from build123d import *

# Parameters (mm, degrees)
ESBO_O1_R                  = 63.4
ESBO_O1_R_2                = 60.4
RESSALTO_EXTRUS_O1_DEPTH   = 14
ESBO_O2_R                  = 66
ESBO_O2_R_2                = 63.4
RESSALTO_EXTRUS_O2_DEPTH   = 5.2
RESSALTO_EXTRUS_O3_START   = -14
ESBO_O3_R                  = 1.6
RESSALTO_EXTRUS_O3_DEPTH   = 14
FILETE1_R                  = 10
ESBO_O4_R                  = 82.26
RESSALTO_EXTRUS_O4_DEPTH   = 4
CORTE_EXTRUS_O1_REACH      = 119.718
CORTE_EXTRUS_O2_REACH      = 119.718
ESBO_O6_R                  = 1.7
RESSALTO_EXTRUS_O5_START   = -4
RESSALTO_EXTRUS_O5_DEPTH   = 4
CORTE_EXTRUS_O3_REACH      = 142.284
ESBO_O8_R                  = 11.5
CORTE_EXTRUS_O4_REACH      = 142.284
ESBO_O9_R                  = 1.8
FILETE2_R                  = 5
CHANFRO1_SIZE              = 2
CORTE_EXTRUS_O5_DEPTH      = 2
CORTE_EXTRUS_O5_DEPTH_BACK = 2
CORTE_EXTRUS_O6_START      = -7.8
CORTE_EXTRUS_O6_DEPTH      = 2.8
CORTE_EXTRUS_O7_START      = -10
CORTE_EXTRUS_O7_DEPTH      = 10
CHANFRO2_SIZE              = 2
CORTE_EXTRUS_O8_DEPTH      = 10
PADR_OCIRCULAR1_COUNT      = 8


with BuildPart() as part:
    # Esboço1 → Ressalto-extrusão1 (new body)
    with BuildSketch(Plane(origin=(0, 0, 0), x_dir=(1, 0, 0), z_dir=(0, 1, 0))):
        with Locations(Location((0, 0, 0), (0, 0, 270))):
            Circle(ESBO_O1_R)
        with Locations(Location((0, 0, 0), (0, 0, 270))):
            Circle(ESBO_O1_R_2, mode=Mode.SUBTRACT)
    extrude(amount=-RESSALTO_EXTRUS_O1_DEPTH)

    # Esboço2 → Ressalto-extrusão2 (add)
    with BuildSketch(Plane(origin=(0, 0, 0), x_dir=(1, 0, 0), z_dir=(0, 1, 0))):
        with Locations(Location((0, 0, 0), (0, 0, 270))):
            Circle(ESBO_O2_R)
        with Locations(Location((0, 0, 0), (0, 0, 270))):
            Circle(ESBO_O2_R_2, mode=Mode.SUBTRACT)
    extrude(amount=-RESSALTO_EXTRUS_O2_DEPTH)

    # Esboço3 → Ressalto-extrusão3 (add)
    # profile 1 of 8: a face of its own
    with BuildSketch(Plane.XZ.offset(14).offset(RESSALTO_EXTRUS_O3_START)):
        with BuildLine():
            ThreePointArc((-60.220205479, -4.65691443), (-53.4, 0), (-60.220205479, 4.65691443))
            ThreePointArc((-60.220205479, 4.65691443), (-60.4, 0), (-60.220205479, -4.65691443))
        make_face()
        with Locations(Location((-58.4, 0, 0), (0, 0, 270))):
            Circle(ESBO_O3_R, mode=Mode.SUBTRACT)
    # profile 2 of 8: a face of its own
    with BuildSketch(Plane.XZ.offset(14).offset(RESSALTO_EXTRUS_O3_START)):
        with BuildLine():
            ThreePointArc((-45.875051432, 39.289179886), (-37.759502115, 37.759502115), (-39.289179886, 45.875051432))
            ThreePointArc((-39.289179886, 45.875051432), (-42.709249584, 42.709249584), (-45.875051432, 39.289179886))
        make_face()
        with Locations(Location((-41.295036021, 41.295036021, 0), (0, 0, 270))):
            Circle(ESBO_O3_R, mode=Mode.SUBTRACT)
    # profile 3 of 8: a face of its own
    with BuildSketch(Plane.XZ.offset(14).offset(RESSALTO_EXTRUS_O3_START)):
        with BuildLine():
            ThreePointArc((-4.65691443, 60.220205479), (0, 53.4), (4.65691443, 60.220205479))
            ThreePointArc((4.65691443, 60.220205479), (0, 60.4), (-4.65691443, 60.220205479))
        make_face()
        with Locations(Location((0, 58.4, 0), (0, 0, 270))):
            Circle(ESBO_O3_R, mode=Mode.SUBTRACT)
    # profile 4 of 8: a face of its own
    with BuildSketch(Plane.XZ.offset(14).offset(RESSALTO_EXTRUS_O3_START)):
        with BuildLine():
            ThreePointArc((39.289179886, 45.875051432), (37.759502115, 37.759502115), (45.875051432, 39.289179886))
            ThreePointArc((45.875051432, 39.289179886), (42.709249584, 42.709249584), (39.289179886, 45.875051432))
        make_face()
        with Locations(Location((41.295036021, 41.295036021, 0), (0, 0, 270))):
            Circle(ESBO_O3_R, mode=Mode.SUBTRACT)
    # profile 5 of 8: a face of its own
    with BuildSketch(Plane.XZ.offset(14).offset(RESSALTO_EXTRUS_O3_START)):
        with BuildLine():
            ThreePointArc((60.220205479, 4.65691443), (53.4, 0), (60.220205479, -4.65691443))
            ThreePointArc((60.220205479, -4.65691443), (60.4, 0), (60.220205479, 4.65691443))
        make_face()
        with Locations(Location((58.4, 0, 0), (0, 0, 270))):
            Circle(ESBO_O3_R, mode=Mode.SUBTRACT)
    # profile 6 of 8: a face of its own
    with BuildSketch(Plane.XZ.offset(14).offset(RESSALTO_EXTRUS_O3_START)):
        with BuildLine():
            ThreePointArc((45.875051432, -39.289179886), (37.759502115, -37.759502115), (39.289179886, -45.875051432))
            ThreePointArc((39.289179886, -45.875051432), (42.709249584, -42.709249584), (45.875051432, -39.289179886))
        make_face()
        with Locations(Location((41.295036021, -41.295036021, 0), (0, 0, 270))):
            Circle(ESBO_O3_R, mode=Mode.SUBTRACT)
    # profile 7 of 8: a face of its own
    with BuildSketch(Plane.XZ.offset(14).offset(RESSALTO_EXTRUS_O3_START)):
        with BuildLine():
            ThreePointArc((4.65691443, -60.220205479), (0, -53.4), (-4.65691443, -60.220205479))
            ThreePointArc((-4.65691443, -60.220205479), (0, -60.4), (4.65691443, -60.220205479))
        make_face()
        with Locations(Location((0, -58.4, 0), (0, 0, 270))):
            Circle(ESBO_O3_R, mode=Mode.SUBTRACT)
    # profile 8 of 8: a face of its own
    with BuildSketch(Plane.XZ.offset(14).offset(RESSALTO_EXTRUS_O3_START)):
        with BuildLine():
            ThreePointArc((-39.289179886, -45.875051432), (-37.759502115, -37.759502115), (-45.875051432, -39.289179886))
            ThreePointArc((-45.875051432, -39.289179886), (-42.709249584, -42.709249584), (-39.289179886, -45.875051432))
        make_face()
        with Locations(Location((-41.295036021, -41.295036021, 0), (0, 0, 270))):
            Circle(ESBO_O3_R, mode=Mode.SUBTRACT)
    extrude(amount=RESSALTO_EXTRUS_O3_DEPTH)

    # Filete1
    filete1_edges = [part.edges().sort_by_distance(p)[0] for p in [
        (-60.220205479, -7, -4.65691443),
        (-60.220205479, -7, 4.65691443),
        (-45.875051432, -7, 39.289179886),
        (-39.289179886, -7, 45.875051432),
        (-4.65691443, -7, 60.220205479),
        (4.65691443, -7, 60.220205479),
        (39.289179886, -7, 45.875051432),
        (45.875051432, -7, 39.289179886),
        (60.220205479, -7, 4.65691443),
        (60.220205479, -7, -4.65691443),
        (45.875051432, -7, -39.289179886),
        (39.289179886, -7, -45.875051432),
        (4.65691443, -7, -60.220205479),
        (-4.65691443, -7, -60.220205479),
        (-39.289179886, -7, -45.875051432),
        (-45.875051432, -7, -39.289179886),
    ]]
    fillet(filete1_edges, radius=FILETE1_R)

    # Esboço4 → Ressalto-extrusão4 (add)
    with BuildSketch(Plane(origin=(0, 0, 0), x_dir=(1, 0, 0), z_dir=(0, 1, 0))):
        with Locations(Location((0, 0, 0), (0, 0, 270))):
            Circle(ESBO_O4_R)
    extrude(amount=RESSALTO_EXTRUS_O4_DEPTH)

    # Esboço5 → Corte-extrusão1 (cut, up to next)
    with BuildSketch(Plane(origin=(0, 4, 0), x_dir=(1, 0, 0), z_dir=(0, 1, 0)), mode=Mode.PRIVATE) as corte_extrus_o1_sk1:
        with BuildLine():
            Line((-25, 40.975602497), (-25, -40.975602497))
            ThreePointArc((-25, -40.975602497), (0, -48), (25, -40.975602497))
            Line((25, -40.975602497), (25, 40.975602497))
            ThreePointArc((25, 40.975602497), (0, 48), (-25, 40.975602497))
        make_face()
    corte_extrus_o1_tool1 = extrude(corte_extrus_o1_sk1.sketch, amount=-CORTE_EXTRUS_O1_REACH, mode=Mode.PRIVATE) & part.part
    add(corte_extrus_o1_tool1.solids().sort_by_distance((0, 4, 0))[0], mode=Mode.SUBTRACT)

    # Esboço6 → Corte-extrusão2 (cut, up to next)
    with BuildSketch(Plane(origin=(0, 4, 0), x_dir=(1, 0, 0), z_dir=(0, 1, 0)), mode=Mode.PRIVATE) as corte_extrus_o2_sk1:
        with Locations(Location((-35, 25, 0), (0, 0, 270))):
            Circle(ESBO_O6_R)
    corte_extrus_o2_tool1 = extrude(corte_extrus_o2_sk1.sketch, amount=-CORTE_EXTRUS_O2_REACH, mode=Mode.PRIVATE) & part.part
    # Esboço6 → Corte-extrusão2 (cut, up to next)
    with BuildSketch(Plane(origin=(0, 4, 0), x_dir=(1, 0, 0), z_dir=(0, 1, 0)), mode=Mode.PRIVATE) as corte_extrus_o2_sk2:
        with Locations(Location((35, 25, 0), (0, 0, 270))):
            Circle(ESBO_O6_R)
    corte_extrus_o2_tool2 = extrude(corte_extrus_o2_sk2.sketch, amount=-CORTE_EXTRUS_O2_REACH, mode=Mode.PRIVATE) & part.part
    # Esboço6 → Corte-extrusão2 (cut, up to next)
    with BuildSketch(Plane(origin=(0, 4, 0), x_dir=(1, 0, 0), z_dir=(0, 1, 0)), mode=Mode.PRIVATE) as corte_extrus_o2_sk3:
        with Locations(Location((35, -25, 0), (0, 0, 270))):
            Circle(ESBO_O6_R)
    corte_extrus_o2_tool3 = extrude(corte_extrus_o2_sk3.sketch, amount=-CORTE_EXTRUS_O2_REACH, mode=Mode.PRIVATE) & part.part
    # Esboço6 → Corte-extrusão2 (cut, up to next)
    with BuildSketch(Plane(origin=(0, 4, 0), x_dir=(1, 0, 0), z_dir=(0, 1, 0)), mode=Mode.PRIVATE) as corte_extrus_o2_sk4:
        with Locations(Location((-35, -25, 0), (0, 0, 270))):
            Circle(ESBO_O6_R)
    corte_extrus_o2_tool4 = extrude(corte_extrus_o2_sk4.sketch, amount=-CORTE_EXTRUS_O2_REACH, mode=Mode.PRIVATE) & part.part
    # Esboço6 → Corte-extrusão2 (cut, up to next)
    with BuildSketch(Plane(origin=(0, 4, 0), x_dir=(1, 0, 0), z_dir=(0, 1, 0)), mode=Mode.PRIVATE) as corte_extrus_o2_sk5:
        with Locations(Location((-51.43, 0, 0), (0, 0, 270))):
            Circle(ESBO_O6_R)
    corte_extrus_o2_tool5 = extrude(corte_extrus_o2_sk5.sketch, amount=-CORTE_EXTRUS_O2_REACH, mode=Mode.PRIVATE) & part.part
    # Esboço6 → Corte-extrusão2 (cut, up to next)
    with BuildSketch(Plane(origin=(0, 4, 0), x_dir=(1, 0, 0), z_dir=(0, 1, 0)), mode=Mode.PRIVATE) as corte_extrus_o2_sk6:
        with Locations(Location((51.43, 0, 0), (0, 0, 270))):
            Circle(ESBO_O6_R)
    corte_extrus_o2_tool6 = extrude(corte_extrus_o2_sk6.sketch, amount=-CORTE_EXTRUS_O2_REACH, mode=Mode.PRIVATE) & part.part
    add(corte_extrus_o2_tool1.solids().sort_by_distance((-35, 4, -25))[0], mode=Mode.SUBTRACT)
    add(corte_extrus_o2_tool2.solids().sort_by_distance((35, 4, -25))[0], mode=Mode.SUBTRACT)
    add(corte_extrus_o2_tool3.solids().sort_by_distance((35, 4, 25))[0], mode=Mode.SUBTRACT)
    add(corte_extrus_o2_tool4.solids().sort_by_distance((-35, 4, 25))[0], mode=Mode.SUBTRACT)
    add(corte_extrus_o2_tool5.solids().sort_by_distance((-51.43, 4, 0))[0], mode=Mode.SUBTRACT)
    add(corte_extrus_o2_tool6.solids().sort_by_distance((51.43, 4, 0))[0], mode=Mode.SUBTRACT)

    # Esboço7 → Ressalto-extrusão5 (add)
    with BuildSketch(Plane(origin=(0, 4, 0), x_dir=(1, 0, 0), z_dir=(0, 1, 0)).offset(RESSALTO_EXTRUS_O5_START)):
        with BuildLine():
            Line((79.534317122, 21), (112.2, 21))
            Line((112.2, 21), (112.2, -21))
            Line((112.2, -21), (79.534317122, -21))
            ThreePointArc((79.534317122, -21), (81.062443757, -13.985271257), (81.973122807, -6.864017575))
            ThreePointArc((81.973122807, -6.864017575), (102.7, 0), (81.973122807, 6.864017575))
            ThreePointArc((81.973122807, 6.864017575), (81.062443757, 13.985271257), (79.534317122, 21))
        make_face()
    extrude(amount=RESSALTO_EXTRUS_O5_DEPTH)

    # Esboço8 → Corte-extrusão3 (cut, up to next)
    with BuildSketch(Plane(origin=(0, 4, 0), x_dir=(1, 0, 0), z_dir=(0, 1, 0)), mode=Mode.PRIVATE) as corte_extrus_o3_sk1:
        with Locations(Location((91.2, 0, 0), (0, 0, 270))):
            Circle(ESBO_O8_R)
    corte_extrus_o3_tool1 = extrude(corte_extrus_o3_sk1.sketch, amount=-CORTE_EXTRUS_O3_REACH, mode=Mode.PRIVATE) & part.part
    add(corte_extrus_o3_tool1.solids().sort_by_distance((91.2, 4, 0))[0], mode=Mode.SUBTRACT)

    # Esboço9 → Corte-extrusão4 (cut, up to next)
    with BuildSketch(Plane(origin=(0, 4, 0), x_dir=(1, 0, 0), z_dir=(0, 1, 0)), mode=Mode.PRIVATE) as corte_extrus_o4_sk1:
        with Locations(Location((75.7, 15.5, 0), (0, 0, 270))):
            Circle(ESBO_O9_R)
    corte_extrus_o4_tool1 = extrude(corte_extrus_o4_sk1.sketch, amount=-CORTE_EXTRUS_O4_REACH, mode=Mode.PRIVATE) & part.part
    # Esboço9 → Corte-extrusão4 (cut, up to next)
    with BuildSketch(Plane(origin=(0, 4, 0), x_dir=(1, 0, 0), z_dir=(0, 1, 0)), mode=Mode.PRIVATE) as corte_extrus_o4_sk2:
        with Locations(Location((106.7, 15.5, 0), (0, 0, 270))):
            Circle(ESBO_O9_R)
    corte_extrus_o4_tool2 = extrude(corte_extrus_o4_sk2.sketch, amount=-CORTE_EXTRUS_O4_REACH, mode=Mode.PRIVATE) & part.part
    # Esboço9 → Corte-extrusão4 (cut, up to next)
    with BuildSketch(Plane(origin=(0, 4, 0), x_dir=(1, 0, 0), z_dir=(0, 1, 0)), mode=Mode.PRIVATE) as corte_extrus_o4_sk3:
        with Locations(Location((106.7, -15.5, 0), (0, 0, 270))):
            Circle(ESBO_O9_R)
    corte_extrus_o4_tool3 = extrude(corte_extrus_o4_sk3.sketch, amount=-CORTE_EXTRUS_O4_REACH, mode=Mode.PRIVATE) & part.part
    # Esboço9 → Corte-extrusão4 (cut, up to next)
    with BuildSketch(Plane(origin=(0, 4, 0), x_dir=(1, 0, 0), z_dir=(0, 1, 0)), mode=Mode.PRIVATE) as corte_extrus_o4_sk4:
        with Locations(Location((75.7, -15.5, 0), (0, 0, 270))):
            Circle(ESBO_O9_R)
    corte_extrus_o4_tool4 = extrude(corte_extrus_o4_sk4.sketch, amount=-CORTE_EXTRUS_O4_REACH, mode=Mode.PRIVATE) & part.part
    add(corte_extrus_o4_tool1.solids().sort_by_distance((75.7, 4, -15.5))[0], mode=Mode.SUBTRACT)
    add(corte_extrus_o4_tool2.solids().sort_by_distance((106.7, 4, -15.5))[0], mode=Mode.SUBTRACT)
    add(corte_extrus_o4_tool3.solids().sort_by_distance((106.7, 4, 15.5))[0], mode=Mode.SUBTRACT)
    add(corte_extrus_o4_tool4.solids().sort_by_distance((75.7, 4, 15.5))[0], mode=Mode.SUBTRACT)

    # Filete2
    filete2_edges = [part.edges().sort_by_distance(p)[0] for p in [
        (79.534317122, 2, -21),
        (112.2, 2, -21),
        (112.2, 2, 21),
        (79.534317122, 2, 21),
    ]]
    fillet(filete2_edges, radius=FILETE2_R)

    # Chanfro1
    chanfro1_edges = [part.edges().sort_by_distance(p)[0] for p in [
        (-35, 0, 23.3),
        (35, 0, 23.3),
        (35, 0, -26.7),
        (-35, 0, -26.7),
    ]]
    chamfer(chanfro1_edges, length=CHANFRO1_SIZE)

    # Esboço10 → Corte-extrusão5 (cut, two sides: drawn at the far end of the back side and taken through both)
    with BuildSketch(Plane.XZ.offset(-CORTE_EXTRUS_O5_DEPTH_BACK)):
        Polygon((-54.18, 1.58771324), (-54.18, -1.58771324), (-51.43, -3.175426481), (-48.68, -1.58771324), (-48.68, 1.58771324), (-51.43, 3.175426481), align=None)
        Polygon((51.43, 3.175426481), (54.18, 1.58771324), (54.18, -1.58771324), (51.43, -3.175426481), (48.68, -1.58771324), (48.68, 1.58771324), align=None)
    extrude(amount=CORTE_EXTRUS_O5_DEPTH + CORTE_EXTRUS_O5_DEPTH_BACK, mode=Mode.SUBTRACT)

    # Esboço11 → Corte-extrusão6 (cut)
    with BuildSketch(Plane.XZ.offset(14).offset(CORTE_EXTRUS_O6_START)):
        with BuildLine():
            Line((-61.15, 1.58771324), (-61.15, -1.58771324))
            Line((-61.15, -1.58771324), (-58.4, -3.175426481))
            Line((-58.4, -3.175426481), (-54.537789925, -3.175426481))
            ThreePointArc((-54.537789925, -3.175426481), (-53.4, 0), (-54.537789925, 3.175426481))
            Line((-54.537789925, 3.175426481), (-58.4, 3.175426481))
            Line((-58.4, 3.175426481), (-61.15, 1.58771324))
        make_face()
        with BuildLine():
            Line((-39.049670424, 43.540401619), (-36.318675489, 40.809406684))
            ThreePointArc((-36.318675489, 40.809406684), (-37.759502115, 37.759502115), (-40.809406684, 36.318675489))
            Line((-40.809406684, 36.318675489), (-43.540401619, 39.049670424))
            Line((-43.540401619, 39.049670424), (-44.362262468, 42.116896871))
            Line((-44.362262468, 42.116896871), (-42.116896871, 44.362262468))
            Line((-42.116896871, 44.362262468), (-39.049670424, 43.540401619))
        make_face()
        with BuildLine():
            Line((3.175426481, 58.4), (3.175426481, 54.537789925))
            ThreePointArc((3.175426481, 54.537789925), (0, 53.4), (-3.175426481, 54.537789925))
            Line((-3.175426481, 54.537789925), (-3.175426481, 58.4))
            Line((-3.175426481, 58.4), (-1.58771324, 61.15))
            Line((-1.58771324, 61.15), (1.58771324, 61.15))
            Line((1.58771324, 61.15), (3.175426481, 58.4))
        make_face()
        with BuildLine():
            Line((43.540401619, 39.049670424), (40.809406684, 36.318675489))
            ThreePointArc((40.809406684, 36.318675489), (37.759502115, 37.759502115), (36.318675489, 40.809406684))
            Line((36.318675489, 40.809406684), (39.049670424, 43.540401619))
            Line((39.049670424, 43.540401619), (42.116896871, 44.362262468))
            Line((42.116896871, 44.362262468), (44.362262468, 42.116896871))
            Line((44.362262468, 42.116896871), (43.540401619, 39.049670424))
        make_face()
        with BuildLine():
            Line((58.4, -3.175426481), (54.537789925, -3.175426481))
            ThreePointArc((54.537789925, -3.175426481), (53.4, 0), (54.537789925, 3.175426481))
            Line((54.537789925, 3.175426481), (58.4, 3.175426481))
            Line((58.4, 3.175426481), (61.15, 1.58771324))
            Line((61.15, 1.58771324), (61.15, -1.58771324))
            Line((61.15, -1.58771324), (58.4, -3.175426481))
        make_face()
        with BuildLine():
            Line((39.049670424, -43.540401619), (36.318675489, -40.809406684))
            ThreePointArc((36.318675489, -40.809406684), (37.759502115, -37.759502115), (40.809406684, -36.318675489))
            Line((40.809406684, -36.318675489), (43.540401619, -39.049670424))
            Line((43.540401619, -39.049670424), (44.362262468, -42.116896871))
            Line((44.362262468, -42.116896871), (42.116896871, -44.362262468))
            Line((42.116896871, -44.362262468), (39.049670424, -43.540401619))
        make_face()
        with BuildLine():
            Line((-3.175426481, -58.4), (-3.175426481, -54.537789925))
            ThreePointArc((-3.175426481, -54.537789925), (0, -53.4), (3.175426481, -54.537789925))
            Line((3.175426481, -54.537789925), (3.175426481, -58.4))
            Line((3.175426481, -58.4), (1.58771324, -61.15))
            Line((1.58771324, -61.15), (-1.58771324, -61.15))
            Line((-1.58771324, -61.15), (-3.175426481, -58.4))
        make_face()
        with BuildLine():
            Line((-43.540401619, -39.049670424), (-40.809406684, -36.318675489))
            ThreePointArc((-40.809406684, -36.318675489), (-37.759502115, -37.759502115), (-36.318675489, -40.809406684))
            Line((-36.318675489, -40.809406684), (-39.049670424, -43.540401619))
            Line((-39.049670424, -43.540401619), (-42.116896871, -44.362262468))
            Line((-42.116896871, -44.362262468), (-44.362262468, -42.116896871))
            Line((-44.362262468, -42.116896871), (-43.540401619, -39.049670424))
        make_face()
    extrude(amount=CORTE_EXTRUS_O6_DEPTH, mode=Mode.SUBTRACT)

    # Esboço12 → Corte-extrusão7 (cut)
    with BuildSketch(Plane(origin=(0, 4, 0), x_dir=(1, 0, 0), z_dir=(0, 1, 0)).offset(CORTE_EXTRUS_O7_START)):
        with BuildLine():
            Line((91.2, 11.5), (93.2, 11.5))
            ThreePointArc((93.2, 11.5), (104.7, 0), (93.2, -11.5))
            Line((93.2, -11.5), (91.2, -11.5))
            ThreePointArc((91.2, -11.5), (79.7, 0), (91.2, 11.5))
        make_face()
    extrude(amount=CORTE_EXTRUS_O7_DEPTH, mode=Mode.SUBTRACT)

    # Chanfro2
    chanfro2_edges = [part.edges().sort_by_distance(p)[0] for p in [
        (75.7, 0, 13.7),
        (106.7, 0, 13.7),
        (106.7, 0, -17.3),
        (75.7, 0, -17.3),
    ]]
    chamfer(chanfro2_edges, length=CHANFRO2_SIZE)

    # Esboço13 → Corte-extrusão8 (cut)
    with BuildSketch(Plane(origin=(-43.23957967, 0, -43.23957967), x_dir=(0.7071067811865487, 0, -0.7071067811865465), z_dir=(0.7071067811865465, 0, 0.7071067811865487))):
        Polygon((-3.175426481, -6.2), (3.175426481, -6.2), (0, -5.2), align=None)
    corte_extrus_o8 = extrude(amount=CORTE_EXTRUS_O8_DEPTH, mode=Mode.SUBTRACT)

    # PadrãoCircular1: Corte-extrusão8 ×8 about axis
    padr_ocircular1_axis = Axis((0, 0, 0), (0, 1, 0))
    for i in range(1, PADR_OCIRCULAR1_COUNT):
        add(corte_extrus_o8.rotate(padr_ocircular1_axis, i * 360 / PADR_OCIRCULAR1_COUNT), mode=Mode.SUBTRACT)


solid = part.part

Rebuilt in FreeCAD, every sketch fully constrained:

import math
import FreeCAD as App
import Part
import Sketcher

V = App.Vector
Q = App.Units.Quantity


def edges_at(feature, points):
    """Names of the edges that pass closest to the given points."""
    edges = feature.Shape.Edges
    near = lambda p: min(range(len(edges)), key=lambda i: edges[i].distToShape(Part.Vertex(*p))[0])
    return sorted({f"Edge{near(p) + 1}" for p in points})


def add_polygon(sketch, points):
    """Adds a closed chain of lines whose ends are joined by coincident constraints."""
    first, n = sketch.GeometryCount, len(points)
    for a, b in zip(points, points[1:] + points[:1]):
        sketch.addGeometry(Part.LineSegment(App.Vector(*a, 0), App.Vector(*b, 0)), False)
    for i in range(n):
        sketch.addConstraint(Sketcher.Constraint("Coincident", first + i, 2, first + (i + 1) % n, 1))

doc = App.newDocument("Part")
body = doc.addObject("PartDesign::Body", "Body")

# Sketch on XZ plane
sketch1 = body.newObject("Sketcher::SketchObject", "Sketch")
sketch1.AttachmentSupport = (doc.getObject("XZ_Plane"), [""])
sketch1.MapMode = "FlatFace"
sketch1.addGeometry([
    Part.Circle(V(0, 0, 0), V(0, 0, 1), 63.4),
    Part.Circle(V(0, 0, 0), V(0, 0, 1), 60.4),
], False)
sketch1.addConstraint([
    Sketcher.Constraint("Coincident", 0, 3, -1, 1),
    Sketcher.Constraint("Coincident", 1, 3, -1, 1),
    Sketcher.Constraint("Diameter", 0, Q("126.8 mm")),
    Sketcher.Constraint("Diameter", 1, Q("120.8 mm")),
])
pad1 = body.newObject("PartDesign::Pad", "Pad")
pad1.Profile = sketch1
pad1.Length = 14

# Sketch on XZ plane
sketch2 = body.newObject("Sketcher::SketchObject", "Sketch001")
sketch2.AttachmentSupport = (doc.getObject("XZ_Plane"), [""])
sketch2.MapMode = "FlatFace"
sketch2.addGeometry([
    Part.Circle(V(0, 0, 0), V(0, 0, 1), 66),
    Part.Circle(V(0, 0, 0), V(0, 0, 1), 63.4),
], False)
sketch2.addConstraint([
    Sketcher.Constraint("Coincident", 0, 3, -1, 1),
    Sketcher.Constraint("Coincident", 1, 3, -1, 1),
    Sketcher.Constraint("Diameter", 0, Q("132 mm")),
    Sketcher.Constraint("Diameter", 1, Q("126.8 mm")),
])
pad2 = body.newObject("PartDesign::Pad", "Pad001")
pad2.Profile = sketch2
pad2.Length = 5.2

# Sketch on XZ plane
sketch3 = body.newObject("Sketcher::SketchObject", "Sketch002")
sketch3.AttachmentSupport = (doc.getObject("XZ_Plane"), [""])
sketch3.MapMode = "FlatFace"
sketch3.addGeometry([
    Part.ArcOfCircle(Part.Circle(V(-58.4, 0, 0), V(0, 0, 1), 5), math.radians(-111.348582), math.radians(111.348582)),  # 0
    Part.ArcOfCircle(Part.Circle(V(0, 0, 0), V(0, 0, 1), 60.4), math.radians(175.578036), math.radians(184.421964)),  # 1
    Part.Circle(V(-58.4, 0, 0), V(0, 0, 1), 1.6),  # 2
    Part.ArcOfCircle(Part.Circle(V(-41.295036, 41.295036, 0), V(0, 0, 1), 5), math.radians(-156.348582), math.radians(66.348582)),  # 3
    Part.ArcOfCircle(Part.Circle(V(0, 0, 0), V(0, 0, 1), 60.4), math.radians(130.578036), math.radians(139.421964)),  # 4
    Part.Circle(V(-41.295036, 41.295036, 0), V(0, 0, 1), 1.6),  # 5
    Part.ArcOfCircle(Part.Circle(V(0, 58.4, 0), V(0, 0, 1), 5), math.radians(158.651418), math.radians(381.348582)),  # 6
    Part.ArcOfCircle(Part.Circle(V(0, 0, 0), V(0, 0, 1), 60.4), math.radians(85.578036), math.radians(94.421964)),  # 7
    Part.Circle(V(0, 58.4, 0), V(0, 0, 1), 1.6),  # 8
    Part.ArcOfCircle(Part.Circle(V(41.295036, 41.295036, 0), V(0, 0, 1), 5), math.radians(113.651418), math.radians(336.348582)),  # 9
    Part.ArcOfCircle(Part.Circle(V(0, 0, 0), V(0, 0, 1), 60.4), math.radians(40.578036), math.radians(49.421964)),  # 10
    Part.Circle(V(41.295036, 41.295036, 0), V(0, 0, 1), 1.6),  # 11
    Part.ArcOfCircle(Part.Circle(V(58.4, 0, 0), V(0, 0, 1), 5), math.radians(68.651418), math.radians(291.348582)),  # 12
    Part.ArcOfCircle(Part.Circle(V(0, 0, 0), V(0, 0, 1), 60.4), math.radians(-4.421964), math.radians(4.421964)),  # 13
    Part.Circle(V(58.4, 0, 0), V(0, 0, 1), 1.6),  # 14
    Part.ArcOfCircle(Part.Circle(V(41.295036, -41.295036, 0), V(0, 0, 1), 5), math.radians(23.651418), math.radians(246.348582)),  # 15
    Part.ArcOfCircle(Part.Circle(V(0, 0, 0), V(0, 0, 1), 60.4), math.radians(-49.421964), math.radians(-40.578036)),  # 16
    Part.Circle(V(41.295036, -41.295036, 0), V(0, 0, 1), 1.6),  # 17
    Part.ArcOfCircle(Part.Circle(V(0, -58.4, 0), V(0, 0, 1), 5), math.radians(-21.348582), math.radians(201.348582)),  # 18
    Part.ArcOfCircle(Part.Circle(V(0, 0, 0), V(0, 0, 1), 60.4), math.radians(-94.421964), math.radians(-85.578036)),  # 19
    Part.Circle(V(0, -58.4, 0), V(0, 0, 1), 1.6),  # 20
    Part.ArcOfCircle(Part.Circle(V(-41.295036, -41.295036, 0), V(0, 0, 1), 5), math.radians(-66.348582), math.radians(156.348582)),  # 21
    Part.ArcOfCircle(Part.Circle(V(0, 0, 0), V(0, 0, 1), 60.4), math.radians(-139.421964), math.radians(-130.578036)),  # 22
    Part.Circle(V(-41.295036, -41.295036, 0), V(0, 0, 1), 1.6),  # 23
], False)
sketch3.addConstraint([
    Sketcher.Constraint("Coincident", 0, 1, 1, 2),
    Sketcher.Constraint("Coincident", 1, 1, 0, 2),
    Sketcher.Constraint("Coincident", 3, 1, 4, 2),
    Sketcher.Constraint("Coincident", 4, 1, 3, 2),
    Sketcher.Constraint("Coincident", 6, 1, 7, 2),
    Sketcher.Constraint("Coincident", 7, 1, 6, 2),
    Sketcher.Constraint("Coincident", 9, 1, 10, 2),
    Sketcher.Constraint("Coincident", 10, 1, 9, 2),
    Sketcher.Constraint("Coincident", 12, 1, 13, 2),
    Sketcher.Constraint("Coincident", 13, 1, 12, 2),
    Sketcher.Constraint("Coincident", 15, 1, 16, 2),
    Sketcher.Constraint("Coincident", 16, 1, 15, 2),
    Sketcher.Constraint("Coincident", 18, 1, 19, 2),
    Sketcher.Constraint("Coincident", 19, 1, 18, 2),
    Sketcher.Constraint("Coincident", 21, 1, 22, 2),
    Sketcher.Constraint("Coincident", 22, 1, 21, 2),
    Sketcher.Constraint("Coincident", 1, 3, -1, 1),
    Sketcher.Constraint("Coincident", 4, 3, -1, 1),
    Sketcher.Constraint("Coincident", 7, 3, -1, 1),
    Sketcher.Constraint("Coincident", 10, 3, -1, 1),
    Sketcher.Constraint("Coincident", 13, 3, -1, 1),
    Sketcher.Constraint("Coincident", 16, 3, -1, 1),
    Sketcher.Constraint("Coincident", 19, 3, -1, 1),
    Sketcher.Constraint("Coincident", 22, 3, -1, 1),
    Sketcher.Constraint("Coincident", 2, 3, 0, 3),
    Sketcher.Constraint("Coincident", 5, 3, 3, 3),
    Sketcher.Constraint("Coincident", 8, 3, 6, 3),
    Sketcher.Constraint("Coincident", 11, 3, 9, 3),
    Sketcher.Constraint("Coincident", 14, 3, 12, 3),
    Sketcher.Constraint("Coincident", 17, 3, 15, 3),
    Sketcher.Constraint("Coincident", 20, 3, 18, 3),
    Sketcher.Constraint("Coincident", 23, 3, 21, 3),
    Sketcher.Constraint("Equal", 0, 3),
    Sketcher.Constraint("Equal", 1, 4),
    Sketcher.Constraint("Equal", 2, 5),
    Sketcher.Constraint("Equal", 3, 6),
    Sketcher.Constraint("Equal", 4, 7),
    Sketcher.Constraint("Equal", 5, 8),
    Sketcher.Constraint("Equal", 6, 9),
    Sketcher.Constraint("Equal", 7, 10),
    Sketcher.Constraint("Equal", 8, 11),
    Sketcher.Constraint("Equal", 9, 12),
    Sketcher.Constraint("Equal", 10, 13),
    Sketcher.Constraint("Equal", 11, 14),
    Sketcher.Constraint("Equal", 12, 15),
    Sketcher.Constraint("Equal", 13, 16),
    Sketcher.Constraint("Equal", 14, 17),
    Sketcher.Constraint("Equal", 15, 18),
    Sketcher.Constraint("Equal", 16, 19),
    Sketcher.Constraint("Equal", 17, 20),
    Sketcher.Constraint("Equal", 18, 21),
    Sketcher.Constraint("Equal", 19, 22),
    Sketcher.Constraint("Equal", 20, 23),
    Sketcher.Constraint("Symmetric", 0, 3, 12, 3, -1, 1),
    Sketcher.Constraint("Symmetric", 3, 3, 15, 3, -1, 1),
    Sketcher.Constraint("Symmetric", 6, 3, 18, 3, -1, 1),
    Sketcher.Constraint("Symmetric", 9, 3, 21, 3, -1, 1),
    Sketcher.Constraint("Symmetric", 3, 3, 9, 3, -2),
    Sketcher.Constraint("PointOnObject", 0, 3, -1),
    Sketcher.Constraint("PointOnObject", 6, 3, -2),
    Sketcher.Constraint("Radius", 0, Q("5 mm")),
    Sketcher.Constraint("Diameter", 2, Q("3.2 mm")),
    Sketcher.Constraint("Radius", 1, Q("60.4 mm")),
    Sketcher.Constraint("DistanceX", 0, 3, -1, 1, Q("58.4 mm")),
    Sketcher.Constraint("DistanceY", -1, 1, 6, 3, Q("58.4 mm")),
    Sketcher.Constraint("DistanceX", 3, 1, -1, 1, Q("45.875051 mm")),
    Sketcher.Constraint("DistanceX", 4, 1, -1, 1, Q("39.28918 mm")),
])
pad3 = body.newObject("PartDesign::Pad", "Pad002")
pad3.Profile = sketch3
pad3.Length = 14
doc.recompute()

fillet = body.newObject("PartDesign::Fillet", "Fillet")
fillet.Base = (pad3, edges_at(pad3, [
    (-60.22, -7, -4.657),
    (-60.22, -7, 4.657),
    (-45.875, -7, 39.289),
    (-39.289, -7, 45.875),
    (-4.657, -7, 60.22),
    (4.657, -7, 60.22),
    (39.289, -7, 45.875),
    (45.875, -7, 39.289),
    (60.22, -7, 4.657),
    (60.22, -7, -4.657),
    (45.875, -7, -39.289),
    (39.289, -7, -45.875),
    (4.657, -7, -60.22),
    (-4.657, -7, -60.22),
    (-39.289, -7, -45.875),
    (-45.875, -7, -39.289),
]))
fillet.Radius = 10

# Sketch on XZ plane
sketch4 = body.newObject("Sketcher::SketchObject", "Sketch003")
sketch4.AttachmentSupport = (doc.getObject("XZ_Plane"), [""])
sketch4.MapMode = "FlatFace"
sketch4.addGeometry(Part.Circle(V(0, 0, 0), V(0, 0, 1), 82.26), False)
sketch4.addConstraint([
    Sketcher.Constraint("Coincident", 0, 3, -1, 1),
    Sketcher.Constraint("Diameter", 0, Q("164.52 mm")),
])
pad4 = body.newObject("PartDesign::Pad", "Pad003")
pad4.Profile = sketch4
pad4.Length = 4
pad4.Reversed = True

# Sketch on XZ plane
sketch5 = body.newObject("Sketcher::SketchObject", "Sketch004")
sketch5.AttachmentSupport = (doc.getObject("XZ_Plane"), [""])
sketch5.MapMode = "FlatFace"
sketch5.AttachmentOffset = App.Placement(V(0, 0, -4), App.Rotation())
sketch5.addGeometry([
    Part.LineSegment(V(-25, -40.975602, 0), V(-25, 40.975602, 0)),
    Part.ArcOfCircle(Part.Circle(V(0, 0, 0), V(0, 0, 1), 48), math.radians(58.611834), math.radians(121.388166)),
    Part.LineSegment(V(25, 40.975602, 0), V(25, -40.975602, 0)),
    Part.ArcOfCircle(Part.Circle(V(0, 0, 0), V(0, 0, 1), 48), math.radians(-121.388166), math.radians(-58.611834)),
], False)
sketch5.addConstraint([
    Sketcher.Constraint("Coincident", 0, 2, 1, 2),
    Sketcher.Constraint("Coincident", 1, 1, 2, 1),
    Sketcher.Constraint("Coincident", 2, 2, 3, 2),
    Sketcher.Constraint("Coincident", 3, 1, 0, 1),
    Sketcher.Constraint("Vertical", 0),
    Sketcher.Constraint("Vertical", 2),
    Sketcher.Constraint("Coincident", 1, 3, -1, 1),
    Sketcher.Constraint("Coincident", 3, 3, -1, 1),
    Sketcher.Constraint("Equal", 1, 3),
    Sketcher.Constraint("Horizontal", 0, 2, 1, 1),
    Sketcher.Constraint("Radius", 1, Q("48 mm")),
    Sketcher.Constraint("DistanceX", 0, 2, -1, 1, Q("25 mm")),
])
pocket1 = body.newObject("PartDesign::Pocket", "Pocket")
pocket1.Profile = sketch5
pocket1.Type = "UpToFirst"
pocket1.Reversed = True

# Sketch on XZ plane
sketch6 = body.newObject("Sketcher::SketchObject", "Sketch005")
sketch6.AttachmentSupport = (doc.getObject("XZ_Plane"), [""])
sketch6.MapMode = "FlatFace"
sketch6.AttachmentOffset = App.Placement(V(0, 0, -4), App.Rotation())
sketch6.addGeometry(Part.Circle(V(-35, -25, 0), V(0, 0, 1), 1.7), False)
sketch6.addConstraint([
    Sketcher.Constraint("Diameter", 0, Q("3.4 mm")),
    Sketcher.Constraint("DistanceX", 0, 3, -1, 1, Q("35 mm")),
    Sketcher.Constraint("DistanceY", 0, 3, -1, 1, Q("25 mm")),
])
pocket2 = body.newObject("PartDesign::Pocket", "Pocket001")
pocket2.Profile = sketch6
pocket2.Type = "UpToFirst"
pocket2.Reversed = True

# Sketch on XZ plane
sketch7 = body.newObject("Sketcher::SketchObject", "Sketch006")
sketch7.AttachmentSupport = (doc.getObject("XZ_Plane"), [""])
sketch7.MapMode = "FlatFace"
sketch7.AttachmentOffset = App.Placement(V(0, 0, -4), App.Rotation())
sketch7.addGeometry(Part.Circle(V(35, -25, 0), V(0, 0, 1), 1.7), False)
sketch7.addConstraint([
    Sketcher.Constraint("Diameter", 0, Q("3.4 mm")),
    Sketcher.Constraint("DistanceX", -1, 1, 0, 3, Q("35 mm")),
    Sketcher.Constraint("DistanceY", 0, 3, -1, 1, Q("25 mm")),
])
pocket3 = body.newObject("PartDesign::Pocket", "Pocket002")
pocket3.Profile = sketch7
pocket3.Type = "UpToFirst"
pocket3.Reversed = True

# Sketch on XZ plane
sketch8 = body.newObject("Sketcher::SketchObject", "Sketch007")
sketch8.AttachmentSupport = (doc.getObject("XZ_Plane"), [""])
sketch8.MapMode = "FlatFace"
sketch8.AttachmentOffset = App.Placement(V(0, 0, -4), App.Rotation())
sketch8.addGeometry(Part.Circle(V(35, 25, 0), V(0, 0, 1), 1.7), False)
sketch8.addConstraint([
    Sketcher.Constraint("Diameter", 0, Q("3.4 mm")),
    Sketcher.Constraint("DistanceX", -1, 1, 0, 3, Q("35 mm")),
    Sketcher.Constraint("DistanceY", -1, 1, 0, 3, Q("25 mm")),
])
pocket4 = body.newObject("PartDesign::Pocket", "Pocket003")
pocket4.Profile = sketch8
pocket4.Type = "UpToFirst"
pocket4.Reversed = True

# Sketch on XZ plane
sketch9 = body.newObject("Sketcher::SketchObject", "Sketch008")
sketch9.AttachmentSupport = (doc.getObject("XZ_Plane"), [""])
sketch9.MapMode = "FlatFace"
sketch9.AttachmentOffset = App.Placement(V(0, 0, -4), App.Rotation())
sketch9.addGeometry(Part.Circle(V(-35, 25, 0), V(0, 0, 1), 1.7), False)
sketch9.addConstraint([
    Sketcher.Constraint("Diameter", 0, Q("3.4 mm")),
    Sketcher.Constraint("DistanceX", 0, 3, -1, 1, Q("35 mm")),
    Sketcher.Constraint("DistanceY", -1, 1, 0, 3, Q("25 mm")),
])
pocket5 = body.newObject("PartDesign::Pocket", "Pocket004")
pocket5.Profile = sketch9
pocket5.Type = "UpToFirst"
pocket5.Reversed = True

# Sketch on XZ plane
sketch10 = body.newObject("Sketcher::SketchObject", "Sketch009")
sketch10.AttachmentSupport = (doc.getObject("XZ_Plane"), [""])
sketch10.MapMode = "FlatFace"
sketch10.AttachmentOffset = App.Placement(V(0, 0, -4), App.Rotation())
sketch10.addGeometry(Part.Circle(V(-51.43, 0, 0), V(0, 0, 1), 1.7), False)
sketch10.addConstraint([
    Sketcher.Constraint("PointOnObject", 0, 3, -1),
    Sketcher.Constraint("Diameter", 0, Q("3.4 mm")),
    Sketcher.Constraint("DistanceX", 0, 3, -1, 1, Q("51.43 mm")),
])
pocket6 = body.newObject("PartDesign::Pocket", "Pocket005")
pocket6.Profile = sketch10
pocket6.Type = "UpToFirst"
pocket6.Reversed = True

# Sketch on XZ plane
sketch11 = body.newObject("Sketcher::SketchObject", "Sketch010")
sketch11.AttachmentSupport = (doc.getObject("XZ_Plane"), [""])
sketch11.MapMode = "FlatFace"
sketch11.AttachmentOffset = App.Placement(V(0, 0, -4), App.Rotation())
sketch11.addGeometry(Part.Circle(V(51.43, 0, 0), V(0, 0, 1), 1.7), False)
sketch11.addConstraint([
    Sketcher.Constraint("PointOnObject", 0, 3, -1),
    Sketcher.Constraint("Diameter", 0, Q("3.4 mm")),
    Sketcher.Constraint("DistanceX", -1, 1, 0, 3, Q("51.43 mm")),
])
pocket7 = body.newObject("PartDesign::Pocket", "Pocket006")
pocket7.Profile = sketch11
pocket7.Type = "UpToFirst"
pocket7.Reversed = True

# Sketch on XZ plane
sketch12 = body.newObject("Sketcher::SketchObject", "Sketch011")
sketch12.AttachmentSupport = (doc.getObject("XZ_Plane"), [""])
sketch12.MapMode = "FlatFace"
sketch12.addGeometry([
    Part.LineSegment(V(112.2, -21, 0), V(79.534317, -21, 0)),  # 0
    Part.ArcOfCircle(Part.Circle(V(0, 0, 0), V(0, 0, 1), 82.26), math.radians(-14.790658), math.radians(-4.786495)),  # 1
    Part.ArcOfCircle(Part.Circle(V(91.2, 0, 0), V(0, 0, 1), 11.5), math.radians(-143.353867), math.radians(143.353867)),  # 2
    Part.ArcOfCircle(Part.Circle(V(0, 0, 0), V(0, 0, 1), 82.26), math.radians(4.786495), math.radians(14.790658)),  # 3
    Part.LineSegment(V(79.534317, 21, 0), V(112.2, 21, 0)),  # 4
    Part.LineSegment(V(112.2, 21, 0), V(112.2, -21, 0)),  # 5
], False)
sketch12.addConstraint([
    Sketcher.Constraint("Coincident", 0, 2, 1, 1),
    Sketcher.Constraint("Coincident", 1, 2, 2, 1),
    Sketcher.Constraint("Coincident", 2, 2, 3, 1),
    Sketcher.Constraint("Coincident", 3, 2, 4, 1),
    Sketcher.Constraint("Coincident", 4, 2, 5, 1),
    Sketcher.Constraint("Coincident", 5, 2, 0, 1),
    Sketcher.Constraint("Horizontal", 0),
    Sketcher.Constraint("Horizontal", 4),
    Sketcher.Constraint("Vertical", 5),
    Sketcher.Constraint("Coincident", 1, 3, -1, 1),
    Sketcher.Constraint("Coincident", 3, 3, -1, 1),
    Sketcher.Constraint("Equal", 1, 3),
    Sketcher.Constraint("PointOnObject", 2, 3, -1),
    Sketcher.Constraint("Vertical", 0, 2, 3, 2),
    Sketcher.Constraint("Radius", 2, Q("11.5 mm")),
    Sketcher.Constraint("DistanceY", 5, 2, 5, 1, Q("42 mm")),
    Sketcher.Constraint("Radius", 1, Q("82.26 mm")),
    Sketcher.Constraint("DistanceX", 2, 3, 4, 2, Q("21 mm")),
    Sketcher.Constraint("DistanceX", -1, 1, 2, 3, Q("91.2 mm")),
])
pad5 = body.newObject("PartDesign::Pad", "Pad004")
pad5.Profile = sketch12
pad5.Length = 4
pad5.Reversed = True

# Sketch on XZ plane
sketch13 = body.newObject("Sketcher::SketchObject", "Sketch012")
sketch13.AttachmentSupport = (doc.getObject("XZ_Plane"), [""])
sketch13.MapMode = "FlatFace"
sketch13.AttachmentOffset = App.Placement(V(0, 0, -4), App.Rotation())
sketch13.addGeometry(Part.Circle(V(91.2, 0, 0), V(0, 0, 1), 11.5), False)
sketch13.addConstraint([
    Sketcher.Constraint("PointOnObject", 0, 3, -1),
    Sketcher.Constraint("Diameter", 0, Q("23 mm")),
    Sketcher.Constraint("DistanceX", -1, 1, 0, 3, Q("91.2 mm")),
])
pocket8 = body.newObject("PartDesign::Pocket", "Pocket007")
pocket8.Profile = sketch13
pocket8.Length = 4
pocket8.Reversed = True

# Sketch on XZ plane
sketch14 = body.newObject("Sketcher::SketchObject", "Sketch013")
sketch14.AttachmentSupport = (doc.getObject("XZ_Plane"), [""])
sketch14.MapMode = "FlatFace"
sketch14.AttachmentOffset = App.Placement(V(0, 0, -4), App.Rotation())
sketch14.addGeometry(Part.Circle(V(75.7, -15.5, 0), V(0, 0, 1), 1.8), False)
sketch14.addConstraint([
    Sketcher.Constraint("Diameter", 0, Q("3.6 mm")),
    Sketcher.Constraint("DistanceX", -1, 1, 0, 3, Q("75.7 mm")),
    Sketcher.Constraint("DistanceY", 0, 3, -1, 1, Q("15.5 mm")),
])
pocket9 = body.newObject("PartDesign::Pocket", "Pocket008")
pocket9.Profile = sketch14
pocket9.Type = "UpToFirst"
pocket9.Reversed = True

# Sketch on XZ plane
sketch15 = body.newObject("Sketcher::SketchObject", "Sketch014")
sketch15.AttachmentSupport = (doc.getObject("XZ_Plane"), [""])
sketch15.MapMode = "FlatFace"
sketch15.AttachmentOffset = App.Placement(V(0, 0, -4), App.Rotation())
sketch15.addGeometry(Part.Circle(V(106.7, -15.5, 0), V(0, 0, 1), 1.8), False)
sketch15.addConstraint([
    Sketcher.Constraint("Diameter", 0, Q("3.6 mm")),
    Sketcher.Constraint("DistanceX", -1, 1, 0, 3, Q("106.7 mm")),
    Sketcher.Constraint("DistanceY", 0, 3, -1, 1, Q("15.5 mm")),
])
pocket10 = body.newObject("PartDesign::Pocket", "Pocket009")
pocket10.Profile = sketch15
pocket10.Type = "UpToFirst"
pocket10.Reversed = True

# Sketch on XZ plane
sketch16 = body.newObject("Sketcher::SketchObject", "Sketch015")
sketch16.AttachmentSupport = (doc.getObject("XZ_Plane"), [""])
sketch16.MapMode = "FlatFace"
sketch16.AttachmentOffset = App.Placement(V(0, 0, -4), App.Rotation())
sketch16.addGeometry(Part.Circle(V(106.7, 15.5, 0), V(0, 0, 1), 1.8), False)
sketch16.addConstraint([
    Sketcher.Constraint("Diameter", 0, Q("3.6 mm")),
    Sketcher.Constraint("DistanceX", -1, 1, 0, 3, Q("106.7 mm")),
    Sketcher.Constraint("DistanceY", -1, 1, 0, 3, Q("15.5 mm")),
])
pocket11 = body.newObject("PartDesign::Pocket", "Pocket010")
pocket11.Profile = sketch16
pocket11.Type = "UpToFirst"
pocket11.Reversed = True

# Sketch on XZ plane
sketch17 = body.newObject("Sketcher::SketchObject", "Sketch016")
sketch17.AttachmentSupport = (doc.getObject("XZ_Plane"), [""])
sketch17.MapMode = "FlatFace"
sketch17.AttachmentOffset = App.Placement(V(0, 0, -4), App.Rotation())
sketch17.addGeometry(Part.Circle(V(75.7, 15.5, 0), V(0, 0, 1), 1.8), False)
sketch17.addConstraint([
    Sketcher.Constraint("Diameter", 0, Q("3.6 mm")),
    Sketcher.Constraint("DistanceX", -1, 1, 0, 3, Q("75.7 mm")),
    Sketcher.Constraint("DistanceY", -1, 1, 0, 3, Q("15.5 mm")),
])
pocket12 = body.newObject("PartDesign::Pocket", "Pocket011")
pocket12.Profile = sketch17
pocket12.Type = "UpToFirst"
pocket12.Reversed = True
doc.recompute()

fillet2 = body.newObject("PartDesign::Fillet", "Fillet001")
fillet2.Base = (pocket12, edges_at(pocket12, [
    (79.534, 2, -21),
    (112.2, 2, -21),
    (112.2, 2, 21),
    (79.534, 2, 21),
]))
fillet2.Radius = 5
doc.recompute()

chamfer = body.newObject("PartDesign::Chamfer", "Chamfer")
chamfer.Base = (fillet2, edges_at(fillet2, [
    (-35, 0, 23.3),
    (35, 0, 23.3),
    (35, 0, -26.7),
    (-35, 0, -26.7),
]))
chamfer.Size = 2

# Sketch on XZ plane
sketch18 = body.newObject("Sketcher::SketchObject", "Sketch017")
sketch18.AttachmentSupport = (doc.getObject("XZ_Plane"), [""])
sketch18.MapMode = "FlatFace"
add_polygon(sketch18, [(-54.18, 1.587713), (-54.18, -1.587713), (-51.43, -3.175426), (-48.68, -1.587713), (-48.68, 1.587713), (-51.43, 3.175426)])  # lines 0-5
add_polygon(sketch18, [(54.18, 1.587713), (51.43, 3.175426), (48.68, 1.587713), (48.68, -1.587713), (51.43, -3.175426), (54.18, -1.587713)])  # lines 6-11
sketch18.addConstraint([
    Sketcher.Constraint("Vertical", 0),
    Sketcher.Constraint("Vertical", 3),
    Sketcher.Constraint("Vertical", 8),
    Sketcher.Constraint("Vertical", 11),
    Sketcher.Constraint("Symmetric", 1, 2, 6, 2, -1, 1),
    Sketcher.Constraint("Symmetric", 2, 2, 7, 2, -1, 1),
    Sketcher.Constraint("Symmetric", 4, 2, 9, 2, -1, 1),
    Sketcher.Constraint("Symmetric", 5, 2, 10, 2, -1, 1),
    Sketcher.Constraint("Symmetric", 4, 2, 6, 2, -2),
    Sketcher.Constraint("Parallel", 1, 4),
    Sketcher.Constraint("Parallel", 2, 5),
    Sketcher.Constraint("Parallel", 4, 6),
    Sketcher.Constraint("Parallel", 6, 9),
    Sketcher.Constraint("Horizontal", 0, 2, 2, 2),
    Sketcher.Constraint("Horizontal", 3, 2, 5, 2),
    Sketcher.Constraint("Angle", 1, Q("-30 deg")),
    Sketcher.Constraint("DistanceX", 0, 2, 2, 2, Q("5.5 mm")),
    Sketcher.Constraint("DistanceX", 0, 2, -1, 1, Q("54.18 mm")),
    Sketcher.Constraint("DistanceY", 0, 2, 0, 1, Q("3.175426 mm")),
])
pocket13 = body.newObject("PartDesign::Pocket", "Pocket012")
pocket13.Profile = sketch18
pocket13.Type = "TwoLengths"
pocket13.Length = 2
pocket13.Length2 = 2
pocket13.Reversed = True

# Sketch on XZ plane
sketch19 = body.newObject("Sketcher::SketchObject", "Sketch018")
sketch19.AttachmentSupport = (doc.getObject("XZ_Plane"), [""])
sketch19.MapMode = "FlatFace"
sketch19.AttachmentOffset = App.Placement(V(0, 0, 6.2), App.Rotation())
sketch19.addGeometry([
    Part.LineSegment(V(-61.15, 1.587713, 0), V(-61.15, -1.587713, 0)),  # 0
    Part.LineSegment(V(-61.15, -1.587713, 0), V(-58.4, -3.175426, 0)),  # 1
    Part.LineSegment(V(-58.4, -3.175426, 0), V(-54.53779, -3.175426, 0)),  # 2
    Part.ArcOfCircle(Part.Circle(V(-58.4, 0, 0), V(0, 0, 1), 5), math.radians(-39.426311), math.radians(39.426311)),  # 3
    Part.LineSegment(V(-54.53779, 3.175426, 0), V(-58.4, 3.175426, 0)),  # 4
    Part.LineSegment(V(-58.4, 3.175426, 0), V(-61.15, 1.587713, 0)),  # 5
    Part.LineSegment(V(-36.318675, 40.809407, 0), V(-39.04967, 43.540402, 0)),  # 6
    Part.LineSegment(V(-39.04967, 43.540402, 0), V(-42.116897, 44.362262, 0)),  # 7
    Part.LineSegment(V(-42.116897, 44.362262, 0), V(-44.362262, 42.116897, 0)),  # 8
    Part.LineSegment(V(-44.362262, 42.116897, 0), V(-43.540402, 39.04967, 0)),  # 9
    Part.LineSegment(V(-43.540402, 39.04967, 0), V(-40.809407, 36.318675, 0)),  # 10
    Part.ArcOfCircle(Part.Circle(V(-41.295036, 41.295036, 0), V(0, 0, 1), 5), math.radians(-84.426311), math.radians(-5.573689)),  # 11
    Part.LineSegment(V(3.175426, 54.53779, 0), V(3.175426, 58.4, 0)),  # 12
    Part.LineSegment(V(3.175426, 58.4, 0), V(1.587713, 61.15, 0)),  # 13
    Part.LineSegment(V(1.587713, 61.15, 0), V(-1.587713, 61.15, 0)),  # 14
    Part.LineSegment(V(-1.587713, 61.15, 0), V(-3.175426, 58.4, 0)),  # 15
    Part.LineSegment(V(-3.175426, 58.4, 0), V(-3.175426, 54.53779, 0)),  # 16
    Part.ArcOfCircle(Part.Circle(V(0, 58.4, 0), V(0, 0, 1), 5), math.radians(-129.426311), math.radians(-50.573689)),  # 17
    Part.LineSegment(V(40.809407, 36.318675, 0), V(43.540402, 39.04967, 0)),  # 18
    Part.LineSegment(V(43.540402, 39.04967, 0), V(44.362262, 42.116897, 0)),  # 19
    Part.LineSegment(V(44.362262, 42.116897, 0), V(42.116897, 44.362262, 0)),  # 20
    Part.LineSegment(V(42.116897, 44.362262, 0), V(39.04967, 43.540402, 0)),  # 21
    Part.LineSegment(V(39.04967, 43.540402, 0), V(36.318675, 40.809407, 0)),  # 22
    Part.ArcOfCircle(Part.Circle(V(41.295036, 41.295036, 0), V(0, 0, 1), 5), math.radians(-174.426311), math.radians(-95.573689)),  # 23
    Part.LineSegment(V(54.53779, -3.175426, 0), V(58.4, -3.175426, 0)),  # 24
    Part.LineSegment(V(58.4, -3.175426, 0), V(61.15, -1.587713, 0)),  # 25
    Part.LineSegment(V(61.15, -1.587713, 0), V(61.15, 1.587713, 0)),  # 26
    Part.LineSegment(V(61.15, 1.587713, 0), V(58.4, 3.175426, 0)),  # 27
    Part.LineSegment(V(58.4, 3.175426, 0), V(54.53779, 3.175426, 0)),  # 28
    Part.ArcOfCircle(Part.Circle(V(58.4, 0, 0), V(0, 0, 1), 5), math.radians(140.573689), math.radians(219.426311)),  # 29
    Part.LineSegment(V(36.318675, -40.809407, 0), V(39.04967, -43.540402, 0)),  # 30
    Part.LineSegment(V(39.04967, -43.540402, 0), V(42.116897, -44.362262, 0)),  # 31
    Part.LineSegment(V(42.116897, -44.362262, 0), V(44.362262, -42.116897, 0)),  # 32
    Part.LineSegment(V(44.362262, -42.116897, 0), V(43.540402, -39.04967, 0)),  # 33
    Part.LineSegment(V(43.540402, -39.04967, 0), V(40.809407, -36.318675, 0)),  # 34
    Part.ArcOfCircle(Part.Circle(V(41.295036, -41.295036, 0), V(0, 0, 1), 5), math.radians(95.573689), math.radians(174.426311)),  # 35
    Part.LineSegment(V(-3.175426, -54.53779, 0), V(-3.175426, -58.4, 0)),  # 36
    Part.LineSegment(V(-3.175426, -58.4, 0), V(-1.587713, -61.15, 0)),  # 37
    Part.LineSegment(V(-1.587713, -61.15, 0), V(1.587713, -61.15, 0)),  # 38
    Part.LineSegment(V(1.587713, -61.15, 0), V(3.175426, -58.4, 0)),  # 39
    Part.LineSegment(V(3.175426, -58.4, 0), V(3.175426, -54.53779, 0)),  # 40
    Part.ArcOfCircle(Part.Circle(V(0, -58.4, 0), V(0, 0, 1), 5), math.radians(50.573689), math.radians(129.426311)),  # 41
    Part.LineSegment(V(-40.809407, -36.318675, 0), V(-43.540402, -39.04967, 0)),  # 42
    Part.LineSegment(V(-43.540402, -39.04967, 0), V(-44.362262, -42.116897, 0)),  # 43
    Part.LineSegment(V(-44.362262, -42.116897, 0), V(-42.116897, -44.362262, 0)),  # 44
    Part.LineSegment(V(-42.116897, -44.362262, 0), V(-39.04967, -43.540402, 0)),  # 45
    Part.LineSegment(V(-39.04967, -43.540402, 0), V(-36.318675, -40.809407, 0)),  # 46
    Part.ArcOfCircle(Part.Circle(V(-41.295036, -41.295036, 0), V(0, 0, 1), 5), math.radians(5.573689), math.radians(84.426311)),  # 47
], False)
sketch19.addConstraint([
    Sketcher.Constraint("Coincident", 0, 2, 1, 1),
    Sketcher.Constraint("Coincident", 1, 2, 2, 1),
    Sketcher.Constraint("Coincident", 2, 2, 3, 1),
    Sketcher.Constraint("Coincident", 3, 2, 4, 1),
    Sketcher.Constraint("Coincident", 4, 2, 5, 1),
    Sketcher.Constraint("Coincident", 5, 2, 0, 1),
    Sketcher.Constraint("Coincident", 6, 2, 7, 1),
    Sketcher.Constraint("Coincident", 7, 2, 8, 1),
    Sketcher.Constraint("Coincident", 8, 2, 9, 1),
    Sketcher.Constraint("Coincident", 9, 2, 10, 1),
    Sketcher.Constraint("Coincident", 10, 2, 11, 1),
    Sketcher.Constraint("Coincident", 11, 2, 6, 1),
    Sketcher.Constraint("Coincident", 12, 2, 13, 1),
    Sketcher.Constraint("Coincident", 13, 2, 14, 1),
    Sketcher.Constraint("Coincident", 14, 2, 15, 1),
    Sketcher.Constraint("Coincident", 15, 2, 16, 1),
    Sketcher.Constraint("Coincident", 16, 2, 17, 1),
    Sketcher.Constraint("Coincident", 17, 2, 12, 1),
    Sketcher.Constraint("Coincident", 18, 2, 19, 1),
    Sketcher.Constraint("Coincident", 19, 2, 20, 1),
    Sketcher.Constraint("Coincident", 20, 2, 21, 1),
    Sketcher.Constraint("Coincident", 21, 2, 22, 1),
    Sketcher.Constraint("Coincident", 22, 2, 23, 1),
    Sketcher.Constraint("Coincident", 23, 2, 18, 1),
    Sketcher.Constraint("Coincident", 24, 2, 25, 1),
    Sketcher.Constraint("Coincident", 25, 2, 26, 1),
    Sketcher.Constraint("Coincident", 26, 2, 27, 1),
    Sketcher.Constraint("Coincident", 27, 2, 28, 1),
    Sketcher.Constraint("Coincident", 28, 2, 29, 1),
    Sketcher.Constraint("Coincident", 29, 2, 24, 1),
    Sketcher.Constraint("Coincident", 30, 2, 31, 1),
    Sketcher.Constraint("Coincident", 31, 2, 32, 1),
    Sketcher.Constraint("Coincident", 32, 2, 33, 1),
    Sketcher.Constraint("Coincident", 33, 2, 34, 1),
    Sketcher.Constraint("Coincident", 34, 2, 35, 1),
    Sketcher.Constraint("Coincident", 35, 2, 30, 1),
    Sketcher.Constraint("Coincident", 36, 2, 37, 1),
    Sketcher.Constraint("Coincident", 37, 2, 38, 1),
    Sketcher.Constraint("Coincident", 38, 2, 39, 1),
    Sketcher.Constraint("Coincident", 39, 2, 40, 1),
    Sketcher.Constraint("Coincident", 40, 2, 41, 1),
    Sketcher.Constraint("Coincident", 41, 2, 36, 1),
    Sketcher.Constraint("Coincident", 42, 2, 43, 1),
    Sketcher.Constraint("Coincident", 43, 2, 44, 1),
    Sketcher.Constraint("Coincident", 44, 2, 45, 1),
    Sketcher.Constraint("Coincident", 45, 2, 46, 1),
    Sketcher.Constraint("Coincident", 46, 2, 47, 1),
    Sketcher.Constraint("Coincident", 47, 2, 42, 1),
    Sketcher.Constraint("Vertical", 0),
    Sketcher.Constraint("Horizontal", 2),
    Sketcher.Constraint("Horizontal", 4),
    Sketcher.Constraint("Vertical", 12),
    Sketcher.Constraint("Horizontal", 14),
    Sketcher.Constraint("Vertical", 16),
    Sketcher.Constraint("Horizontal", 24),
    Sketcher.Constraint("Vertical", 26),
    Sketcher.Constraint("Horizontal", 28),
    Sketcher.Constraint("Vertical", 36),
    Sketcher.Constraint("Horizontal", 38),
    Sketcher.Constraint("Vertical", 40),
    Sketcher.Constraint("Equal", 3, 11),
    Sketcher.Constraint("Equal", 11, 17),
    Sketcher.Constraint("Equal", 17, 23),
    Sketcher.Constraint("Equal", 23, 29),
    Sketcher.Constraint("Equal", 29, 35),
    Sketcher.Constraint("Equal", 35, 41),
    Sketcher.Constraint("Equal", 41, 47),
    Sketcher.Constraint("Symmetric", 3, 3, 29, 3, -1, 1),
    Sketcher.Constraint("Symmetric", 11, 3, 35, 3, -1, 1),
    Sketcher.Constraint("Symmetric", 17, 3, 41, 3, -1, 1),
    Sketcher.Constraint("Symmetric", 23, 3, 47, 3, -1, 1),
    Sketcher.Constraint("Symmetric", 4, 2, 24, 2, -1, 1),
    Sketcher.Constraint("Symmetric", 5, 2, 25, 2, -1, 1),
    Sketcher.Constraint("Symmetric", 1, 2, 27, 2, -1, 1),
    Sketcher.Constraint("Symmetric", 6, 2, 30, 2, -1, 1),
    Sketcher.Constraint("Symmetric", 7, 2, 31, 2, -1, 1),
    Sketcher.Constraint("Symmetric", 8, 2, 32, 2, -1, 1),
    Sketcher.Constraint("Symmetric", 9, 2, 33, 2, -1, 1),
    Sketcher.Constraint("Symmetric", 12, 2, 36, 2, -1, 1),
    Sketcher.Constraint("Symmetric", 13, 2, 37, 2, -1, 1),
    Sketcher.Constraint("Symmetric", 15, 2, 39, 2, -1, 1),
    Sketcher.Constraint("Symmetric", 18, 2, 42, 2, -1, 1),
    Sketcher.Constraint("Symmetric", 19, 2, 43, 2, -1, 1),
    Sketcher.Constraint("Symmetric", 20, 2, 44, 2, -1, 1),
    Sketcher.Constraint("Symmetric", 21, 2, 45, 2, -1, 1),
    Sketcher.Constraint("Symmetric", 11, 3, 23, 3, -2),
    Sketcher.Constraint("Symmetric", 12, 2, 15, 2, -2),
    Sketcher.Constraint("Symmetric", 9, 2, 18, 2, -2),
    Sketcher.Constraint("Symmetric", 8, 2, 19, 2, -2),
    Sketcher.Constraint("Symmetric", 7, 2, 20, 2, -2),
    Sketcher.Constraint("Symmetric", 6, 2, 21, 2, -2),
    Sketcher.Constraint("Symmetric", 1, 2, 24, 2, -2),
    Sketcher.Constraint("PointOnObject", 3, 3, -1),
    Sketcher.Constraint("PointOnObject", 17, 3, -2),
    Sketcher.Constraint("Perpendicular", 6, 8),
    Sketcher.Constraint("Perpendicular", 8, 10),
    Sketcher.Constraint("Perpendicular", 5, 13),
    Sketcher.Constraint("Perpendicular", 1, 15),
    Sketcher.Constraint("Perpendicular", 10, 18),
    Sketcher.Constraint("Perpendicular", 7, 19),
    Sketcher.Constraint("Perpendicular", 18, 20),
    Sketcher.Constraint("Perpendicular", 20, 22),
    Sketcher.Constraint("Perpendicular", 15, 27),
    Sketcher.Constraint("Perpendicular", 22, 30),
    Sketcher.Constraint("Perpendicular", 32, 34),
    Sketcher.Constraint("Perpendicular", 27, 39),
    Sketcher.Constraint("Perpendicular", 34, 42),
    Sketcher.Constraint("Perpendicular", 44, 46),
    Sketcher.Constraint("Horizontal", 17, 3, 12, 2),
    Sketcher.Constraint("Horizontal", 0, 2, 25, 2),
    Sketcher.Constraint("Vertical", 3, 3, 1, 2),
    Sketcher.Constraint("Equal", 38, 0),
    Sketcher.Constraint("Equal", 28, 12),
    Sketcher.Constraint("Equal", 5, 7),
    Sketcher.Constraint("Equal", 7, 8),
    Sketcher.Constraint("Equal", 8, 9),
    Sketcher.Constraint("Equal", 6, 10),
    Sketcher.Constraint("Radius", 3, Q("5 mm")),
    Sketcher.Constraint("Angle", 1, Q("-30 deg")),
    Sketcher.Constraint("Angle", 7, Q("165 deg")),
    Sketcher.Constraint("DistanceX", 3, 3, -1, 1, Q("58.4 mm")),
    Sketcher.Constraint("DistanceY", -1, 1, 17, 3, Q("58.4 mm")),
    Sketcher.Constraint("DistanceX", 0, 2, -1, 1, Q("61.15 mm")),
    Sketcher.Constraint("DistanceX", 2, 1, 2, 2, Q("3.86221 mm")),
    Sketcher.Constraint("DistanceY", -1, 1, 6, 2, Q("43.540402 mm")),
    Sketcher.Constraint("DistanceX", 9, 2, -1, 1, Q("43.540402 mm")),
    Sketcher.Constraint("DistanceX", 11, 2, 12, 2, Q("39.494102 mm")),
])
pocket14 = body.newObject("PartDesign::Pocket", "Pocket013")
pocket14.Profile = sketch19
pocket14.Length = 2.8
pocket14.Reversed = True

# Sketch on XZ plane
sketch20 = body.newObject("Sketcher::SketchObject", "Sketch019")
sketch20.AttachmentSupport = (doc.getObject("XZ_Plane"), [""])
sketch20.MapMode = "FlatFace"
sketch20.AttachmentOffset = App.Placement(V(0, 0, 6), App.Rotation())
sketch20.addGeometry([
    Part.LineSegment(V(93.2, -11.5, 0), V(91.2, -11.5, 0)),
    Part.ArcOfCircle(Part.Circle(V(91.2, 0, 0), V(0, 0, 1), 11.5), math.radians(90), math.radians(270)),
    Part.LineSegment(V(91.2, 11.5, 0), V(93.2, 11.5, 0)),
    Part.ArcOfCircle(Part.Circle(V(93.2, 0, 0), V(0, 0, 1), 11.5), math.radians(-90), math.radians(90)),
], False)
sketch20.addConstraint([
    Sketcher.Constraint("Tangent", 0, 2, 1, 2),
    Sketcher.Constraint("Tangent", 1, 1, 2, 1),
    Sketcher.Constraint("Tangent", 2, 2, 3, 2),
    Sketcher.Constraint("Tangent", 3, 1, 0, 1),
    Sketcher.Constraint("Horizontal", 0),
    Sketcher.Constraint("Horizontal", 2),
    Sketcher.Constraint("PointOnObject", 1, 3, -1),
    Sketcher.Constraint("Radius", 1, Q("11.5 mm")),
    Sketcher.Constraint("DistanceX", 0, 2, 0, 1, Q("2 mm")),
    Sketcher.Constraint("DistanceX", -1, 1, 1, 3, Q("91.2 mm")),
])
pocket15 = body.newObject("PartDesign::Pocket", "Pocket014")
pocket15.Profile = sketch20
pocket15.Length = 10
doc.recompute()

chamfer2 = body.newObject("PartDesign::Chamfer", "Chamfer001")
chamfer2.Base = (pocket15, edges_at(pocket15, [
    (75.7, 0, 13.7),
    (106.7, 0, 13.7),
    (106.7, 0, -17.3),
    (75.7, 0, -17.3),
]))
chamfer2.Size = 2

# Sketch on an angled plane
sketch21 = body.newObject("Sketcher::SketchObject", "Sketch020")
sketch21.Placement = App.Placement(V(-43.23958, 0, -43.23958), App.Rotation(V(0.707106781, 0, -0.707106781), V(0, 0.999999999, 0), V(0.707106781, 0, 0.707106781), "ZXY"))
add_polygon(sketch21, [(-3.175426, -6.2), (3.175426, -6.2), (0, -5.2)])  # lines 0-2
sketch21.addConstraint([
    Sketcher.Constraint("Horizontal", 0),
    Sketcher.Constraint("PointOnObject", 1, 2, -2),
    Sketcher.Constraint("Equal", 1, 2),
    Sketcher.Constraint("DistanceY", 0, 2, 1, 2, Q("1 mm")),
    Sketcher.Constraint("DistanceY", 0, 2, -1, 1, Q("6.2 mm")),
    Sketcher.Constraint("DistanceX", 0, 1, 0, 2, Q("6.350853 mm")),
])
pocket16 = body.newObject("PartDesign::Pocket", "Pocket015")
pocket16.Profile = sketch21
pocket16.Length = 10
pocket16.Reversed = True
doc.recompute()

polarpattern = body.newObject("PartDesign::PolarPattern", "PolarPattern")
polarpattern.Originals = [pocket16]
polarpattern.Axis = (doc.getObject("Y_Axis"), [""])
polarpattern.Angle = 360
polarpattern.Occurrences = 8
body.Tip = polarpattern

doc.recompute()
